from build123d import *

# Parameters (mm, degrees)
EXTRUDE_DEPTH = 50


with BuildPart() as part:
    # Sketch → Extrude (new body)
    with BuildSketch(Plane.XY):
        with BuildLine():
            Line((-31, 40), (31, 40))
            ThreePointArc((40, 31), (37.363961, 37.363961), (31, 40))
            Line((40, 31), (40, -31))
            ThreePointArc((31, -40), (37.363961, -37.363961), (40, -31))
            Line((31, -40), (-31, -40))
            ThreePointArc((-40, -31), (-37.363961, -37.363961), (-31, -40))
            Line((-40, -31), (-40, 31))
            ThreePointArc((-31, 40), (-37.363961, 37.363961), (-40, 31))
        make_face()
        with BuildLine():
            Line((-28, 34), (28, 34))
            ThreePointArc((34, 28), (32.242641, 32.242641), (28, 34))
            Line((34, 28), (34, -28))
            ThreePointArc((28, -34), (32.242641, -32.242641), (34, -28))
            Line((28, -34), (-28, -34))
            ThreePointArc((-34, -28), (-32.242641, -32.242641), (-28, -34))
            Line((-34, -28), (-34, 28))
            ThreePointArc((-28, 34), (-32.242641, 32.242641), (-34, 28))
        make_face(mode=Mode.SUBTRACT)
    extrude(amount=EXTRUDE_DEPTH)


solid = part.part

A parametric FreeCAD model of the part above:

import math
import FreeCAD as App
import Part
import Sketcher
from FreeCAD import Vector
Q = App.Units.Quantity

doc = App.newDocument("Part")
params = doc.addObject("Spreadsheet::Sheet", "Params")
for row, (alias, value) in enumerate([
    ("sketch1_radius", "9 mm"),
    ("sketch1_radius2", "5.999999 mm"),
    ("sketch1_width", "62 mm"),
    ("sketch1_width2", "56 mm"),
    ("pad1_length", "50 mm"),
], start=1):
    params.set(f"A{row}", alias)
    params.set(f"B{row}", "=" + value)
    params.setAlias(f"B{row}", alias)

body = doc.addObject("PartDesign::Body", "Body")

# Sketch on XY plane
sketch1 = doc.addObject("Sketcher::SketchObject", "Sketch")
body.addObject(sketch1)
sketch1.AttachmentSupport = (doc.XY_Plane, [""])
sketch1.MapMode = "FlatFace"
sketch1.addGeometry(Part.LineSegment(Vector(31, 40, 0), Vector(-31, 40, 0)), False)
sketch1.addGeometry(Part.ArcOfCircle(Part.Circle(Vector(-31, 31, 0), Vector(0, 0, 1), 9), math.radians(90.000001), math.radians(179.999999)), False)
sketch1.addGeometry(Part.LineSegment(Vector(-40, 31, 0), Vector(-40, -31, 0)), False)
sketch1.addGeometry(Part.ArcOfCircle(Part.Circle(Vector(-31, -31, 0), Vector(0, 0, 1), 9), math.radians(-179.999999), math.radians(-90.000001)), False)
sketch1.addGeometry(Part.LineSegment(Vector(-31, -40, 0), Vector(31, -40, 0)), False)
sketch1.addGeometry(Part.ArcOfCircle(Part.Circle(Vector(31, -31, 0), Vector(0, 0, 1), 9), math.radians(-89.999999), math.radians(-0.000001)), False)
sketch1.addGeometry(Part.LineSegment(Vector(40, -31, 0), Vector(40, 31, 0)), False)
sketch1.addGeometry(Part.ArcOfCircle(Part.Circle(Vector(31, 31, 0), Vector(0, 0, 1), 9), math.radians(0.000001), math.radians(89.999999)), False)
sketch1.addGeometry(Part.LineSegment(Vector(-28, 34, 0), Vector(28, 34, 0)), False)
sketch1.addGeometry(Part.ArcOfCircle(Part.Circle(Vector(28.000001, 28.000001, 0), Vector(0, 0, 1), 5.999999), math.radians(-0.00001), math.radians(90.00001)), False)
sketch1.addGeometry(Part.LineSegment(Vector(34, 28, 0), Vector(34, -28, 0)), False)
sketch1.addGeometry(Part.ArcOfCircle(Part.Circle(Vector(28.000001, -28.000001, 0), Vector(0, 0, 1), 5.999999), math.radians(-90.00001), math.radians(0.00001)), False)
sketch1.addGeometry(Part.LineSegment(Vector(28, -34, 0), Vector(-28, -34, 0)), False)
sketch1.addGeometry(Part.ArcOfCircle(Part.Circle(Vector(-28.000001, -28.000001, 0), Vector(0, 0, 1), 5.999999), math.radians(179.99999), math.radians(270.00001)), False)
sketch1.addGeometry(Part.LineSegment(Vector(-34, -28, 0), Vector(-34, 28, 0)), False)
sketch1.addGeometry(Part.ArcOfCircle(Part.Circle(Vector(-28.000001, 28.000001, 0), Vector(0, 0, 1), 5.999999), math.radians(89.99999), math.radians(180.00001)), False)
sketch1.addConstraint(Sketcher.Constraint("Tangent", 0, 2, 1, 1))
sketch1.addConstraint(Sketcher.Constraint("Tangent", 1, 2, 2, 1))
sketch1.addConstraint(Sketcher.Constraint("Tangent", 2, 2, 3, 1))
sketch1.addConstraint(Sketcher.Constraint("Tangent", 3, 2, 4, 1))
sketch1.addConstraint(Sketcher.Constraint("Tangent", 4, 2, 5, 1))
sketch1.addConstraint(Sketcher.Constraint("Tangent", 5, 2, 6, 1))
sketch1.addConstraint(Sketcher.Constraint("Tangent", 6, 2, 7, 1))
sketch1.addConstraint(Sketcher.Constraint("Tangent", 7, 2, 0, 1))
sketch1.addConstraint(Sketcher.Constraint("Tangent", 8, 2, 9, 2))
sketch1.addConstraint(Sketcher.Constraint("Tangent", 9, 1, 10, 1))
sketch1.addConstraint(Sketcher.Constraint("Tangent", 10, 2, 11, 2))
sketch1.addConstraint(Sketcher.Constraint("Tangent", 11, 1, 12, 1))
sketch1.addConstraint(Sketcher.Constraint("Tangent", 12, 2, 13, 2))
sketch1.addConstraint(Sketcher.Constraint("Tangent", 13, 1, 14, 1))
sketch1.addConstraint(Sketcher.Constraint("Tangent", 14, 2, 15, 2))
sketch1.addConstraint(Sketcher.Constraint("Tangent", 15, 1, 8, 1))
sketch1.addConstraint(Sketcher.Constraint("Horizontal", 0))
sketch1.addConstraint(Sketcher.Constraint("Vertical", 2))
sketch1.addConstraint(Sketcher.Constraint("Horizontal", 4))
sketch1.addConstraint(Sketcher.Constraint("Vertical", 6))
sketch1.addConstraint(Sketcher.Constraint("Horizontal", 8))
sketch1.addConstraint(Sketcher.Constraint("Vertical", 10))
sketch1.addConstraint(Sketcher.Constraint("Horizontal", 12))
sketch1.addConstraint(Sketcher.Constraint("Vertical", 14))
sketch1.addConstraint(Sketcher.Constraint("Equal", 1, 3))
sketch1.addConstraint(Sketcher.Constraint("Equal", 3, 5))
sketch1.addConstraint(Sketcher.Constraint("Equal", 5, 7))
sketch1.addConstraint(Sketcher.Constraint("Equal", 9, 11))
sketch1.addConstraint(Sketcher.Constraint("Equal", 11, 13))
sketch1.addConstraint(Sketcher.Constraint("Equal", 13, 15))
sketch1.addConstraint(Sketcher.Constraint("Symmetric", 1, 3, 5, 3, -1, 1))
sketch1.addConstraint(Sketcher.Constraint("Symmetric", 9, 3, 13, 3, -1, 1))
sketch1.addConstraint(Sketcher.Constraint("Equal", 4, 2))
sketch1.addConstraint(Sketcher.Constraint("Equal", 12, 10))
sketch1.addConstraint(Sketcher.Constraint("Radius", 1, Q("9 mm")))
sketch1.addConstraint(Sketcher.Constraint("Radius", 9, Q("5.999999 mm")))
sketch1.addConstraint(Sketcher.Constraint("DistanceX", 0, 2, 0, 1, Q("62 mm")))
sketch1.addConstraint(Sketcher.Constraint("DistanceX", 8, 1, 8, 2, Q("56 mm")))
sketch1.setExpression("Constraints[34]", "Params.sketch1_radius")
sketch1.setExpression("Constraints[35]", "Params.sketch1_radius2")
sketch1.setExpression("Constraints[36]", "Params.sketch1_width")
sketch1.setExpression("Constraints[37]", "Params.sketch1_width2")
pad1 = doc.addObject("PartDesign::Pad", "Pad")
body.addObject(pad1)
pad1.Profile = sketch1
pad1.setExpression("Length", "Params.pad1_length")

doc.recompute()
